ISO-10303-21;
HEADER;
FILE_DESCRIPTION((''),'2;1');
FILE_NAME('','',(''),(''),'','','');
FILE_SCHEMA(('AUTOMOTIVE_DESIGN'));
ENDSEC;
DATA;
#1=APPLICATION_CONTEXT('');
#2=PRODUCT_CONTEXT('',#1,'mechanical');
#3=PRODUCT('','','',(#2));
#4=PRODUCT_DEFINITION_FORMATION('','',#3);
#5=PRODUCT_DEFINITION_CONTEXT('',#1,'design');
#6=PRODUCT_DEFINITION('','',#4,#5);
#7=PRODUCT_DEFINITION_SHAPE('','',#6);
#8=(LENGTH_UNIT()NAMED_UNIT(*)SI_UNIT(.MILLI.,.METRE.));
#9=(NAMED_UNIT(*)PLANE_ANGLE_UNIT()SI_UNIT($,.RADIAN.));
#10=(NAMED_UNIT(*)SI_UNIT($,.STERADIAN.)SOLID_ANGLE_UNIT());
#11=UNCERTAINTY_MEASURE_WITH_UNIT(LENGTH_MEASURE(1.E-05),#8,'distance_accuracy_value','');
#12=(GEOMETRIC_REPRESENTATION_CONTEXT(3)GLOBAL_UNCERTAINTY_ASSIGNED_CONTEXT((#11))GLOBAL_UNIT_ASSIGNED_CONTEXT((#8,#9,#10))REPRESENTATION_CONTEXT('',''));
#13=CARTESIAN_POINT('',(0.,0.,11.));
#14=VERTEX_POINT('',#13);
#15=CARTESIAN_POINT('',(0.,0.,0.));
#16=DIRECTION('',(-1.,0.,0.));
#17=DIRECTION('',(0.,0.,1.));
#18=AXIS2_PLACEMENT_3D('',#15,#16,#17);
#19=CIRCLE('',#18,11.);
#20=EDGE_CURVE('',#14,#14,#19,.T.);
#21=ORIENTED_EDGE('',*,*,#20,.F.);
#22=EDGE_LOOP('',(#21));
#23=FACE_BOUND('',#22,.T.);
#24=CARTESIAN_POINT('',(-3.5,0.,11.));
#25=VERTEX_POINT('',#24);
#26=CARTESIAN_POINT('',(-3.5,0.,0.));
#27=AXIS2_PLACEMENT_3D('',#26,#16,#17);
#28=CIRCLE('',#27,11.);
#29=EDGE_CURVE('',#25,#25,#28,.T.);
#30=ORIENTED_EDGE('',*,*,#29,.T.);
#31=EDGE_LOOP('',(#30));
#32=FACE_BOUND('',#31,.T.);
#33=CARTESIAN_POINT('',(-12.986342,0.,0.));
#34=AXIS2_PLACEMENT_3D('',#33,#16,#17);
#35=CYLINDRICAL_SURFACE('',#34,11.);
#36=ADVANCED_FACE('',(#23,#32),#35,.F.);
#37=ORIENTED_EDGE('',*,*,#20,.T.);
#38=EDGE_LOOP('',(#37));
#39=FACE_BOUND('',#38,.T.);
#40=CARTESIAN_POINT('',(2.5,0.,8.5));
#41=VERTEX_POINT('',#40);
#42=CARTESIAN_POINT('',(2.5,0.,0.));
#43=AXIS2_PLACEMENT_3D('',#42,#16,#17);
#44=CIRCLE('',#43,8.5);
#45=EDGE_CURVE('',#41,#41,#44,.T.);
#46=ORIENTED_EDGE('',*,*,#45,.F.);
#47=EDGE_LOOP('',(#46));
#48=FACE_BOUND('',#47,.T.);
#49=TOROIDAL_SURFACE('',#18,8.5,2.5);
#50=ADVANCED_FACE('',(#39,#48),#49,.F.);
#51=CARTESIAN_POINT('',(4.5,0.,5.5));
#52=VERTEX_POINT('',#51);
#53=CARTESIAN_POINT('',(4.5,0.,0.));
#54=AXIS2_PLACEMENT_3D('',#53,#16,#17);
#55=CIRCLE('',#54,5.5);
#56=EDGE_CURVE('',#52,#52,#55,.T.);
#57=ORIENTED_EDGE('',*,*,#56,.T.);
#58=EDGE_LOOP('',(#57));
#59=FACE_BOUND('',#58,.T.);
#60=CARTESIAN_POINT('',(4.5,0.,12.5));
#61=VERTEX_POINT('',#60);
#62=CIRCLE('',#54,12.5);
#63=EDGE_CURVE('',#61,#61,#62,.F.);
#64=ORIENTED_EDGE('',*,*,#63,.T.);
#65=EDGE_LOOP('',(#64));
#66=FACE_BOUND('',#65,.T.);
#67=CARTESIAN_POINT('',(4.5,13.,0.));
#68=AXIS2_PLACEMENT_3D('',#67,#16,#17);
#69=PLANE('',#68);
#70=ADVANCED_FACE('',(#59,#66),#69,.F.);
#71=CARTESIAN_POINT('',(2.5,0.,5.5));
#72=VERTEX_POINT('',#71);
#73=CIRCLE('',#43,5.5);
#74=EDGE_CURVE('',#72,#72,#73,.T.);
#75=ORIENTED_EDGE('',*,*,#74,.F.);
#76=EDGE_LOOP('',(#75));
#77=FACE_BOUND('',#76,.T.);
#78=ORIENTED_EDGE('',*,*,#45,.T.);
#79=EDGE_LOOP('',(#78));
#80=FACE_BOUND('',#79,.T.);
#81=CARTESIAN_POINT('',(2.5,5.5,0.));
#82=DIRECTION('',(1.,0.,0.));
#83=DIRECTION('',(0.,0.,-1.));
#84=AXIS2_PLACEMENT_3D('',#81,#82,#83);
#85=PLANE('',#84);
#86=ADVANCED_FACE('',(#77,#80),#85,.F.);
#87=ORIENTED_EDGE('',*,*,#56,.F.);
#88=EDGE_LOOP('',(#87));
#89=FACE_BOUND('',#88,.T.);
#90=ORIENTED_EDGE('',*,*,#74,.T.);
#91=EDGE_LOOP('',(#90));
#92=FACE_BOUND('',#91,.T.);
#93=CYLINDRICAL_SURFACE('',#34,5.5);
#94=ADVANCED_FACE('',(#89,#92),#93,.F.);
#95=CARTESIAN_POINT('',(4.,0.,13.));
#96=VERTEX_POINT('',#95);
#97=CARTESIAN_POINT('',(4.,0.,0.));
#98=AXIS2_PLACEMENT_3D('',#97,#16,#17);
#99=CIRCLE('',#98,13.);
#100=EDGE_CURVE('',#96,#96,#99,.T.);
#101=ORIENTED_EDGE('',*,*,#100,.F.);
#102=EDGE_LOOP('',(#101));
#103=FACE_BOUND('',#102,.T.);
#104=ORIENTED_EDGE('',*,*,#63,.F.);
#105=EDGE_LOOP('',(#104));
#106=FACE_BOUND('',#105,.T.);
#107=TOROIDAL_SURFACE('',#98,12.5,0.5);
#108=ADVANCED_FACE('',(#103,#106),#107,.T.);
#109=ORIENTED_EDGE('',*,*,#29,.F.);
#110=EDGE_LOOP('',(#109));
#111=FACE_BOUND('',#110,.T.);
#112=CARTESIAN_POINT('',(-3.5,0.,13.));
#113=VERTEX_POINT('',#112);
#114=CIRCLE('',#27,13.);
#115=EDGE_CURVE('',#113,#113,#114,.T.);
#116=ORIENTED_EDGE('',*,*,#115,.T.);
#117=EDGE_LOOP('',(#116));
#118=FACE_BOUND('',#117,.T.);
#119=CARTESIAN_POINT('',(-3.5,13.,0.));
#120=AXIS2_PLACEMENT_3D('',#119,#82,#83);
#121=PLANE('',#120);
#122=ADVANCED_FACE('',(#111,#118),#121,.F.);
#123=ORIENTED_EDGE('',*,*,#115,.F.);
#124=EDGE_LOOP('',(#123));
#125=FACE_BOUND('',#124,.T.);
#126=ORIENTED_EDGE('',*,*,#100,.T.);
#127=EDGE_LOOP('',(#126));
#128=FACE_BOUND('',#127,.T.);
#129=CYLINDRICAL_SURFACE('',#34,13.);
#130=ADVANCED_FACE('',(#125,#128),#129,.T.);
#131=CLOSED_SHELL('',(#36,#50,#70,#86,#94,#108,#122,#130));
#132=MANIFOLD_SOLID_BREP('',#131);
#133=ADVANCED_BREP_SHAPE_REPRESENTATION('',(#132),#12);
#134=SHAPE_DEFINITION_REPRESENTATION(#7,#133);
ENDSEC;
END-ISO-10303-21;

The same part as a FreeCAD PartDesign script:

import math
import FreeCAD as App
import Part
import Sketcher


def edges_at(feature, points):
    """Names of the edges that pass closest to the given points."""
    edges = feature.Shape.Edges
    near = lambda p: min(range(len(edges)), key=lambda i: edges[i].distToShape(Part.Vertex(*p))[0])
    return sorted({f"Edge{near(p) + 1}" for p in points})

doc = App.newDocument("Part")
body = doc.addObject("PartDesign::Body", "Body")

# Sketch on XY plane
sketch1 = body.newObject("Sketcher::SketchObject", "Sketch")
sketch1.AttachmentSupport = (doc.getObject("XY_Plane"), [""])
sketch1.MapMode = "FlatFace"
sketch1.addGeometry([
    Part.LineSegment(App.Vector(4.5, 13, 0), App.Vector(-3.5, 13, 0)),  # 0
    Part.LineSegment(App.Vector(-3.5, 13, 0), App.Vector(-3.5, 11, 0)),  # 1
    Part.LineSegment(App.Vector(-3.5, 11, 0), App.Vector(0, 11, 0)),  # 2
    Part.ArcOfCircle(Part.Circle(App.Vector(0, 8.5, 0), App.Vector(0, 0, 1), 2.5), math.radians(0), math.radians(90)),  # 3
    Part.LineSegment(App.Vector(2.5, 8.5, 0), App.Vector(2.5, 5.5, 0)),  # 4
    Part.LineSegment(App.Vector(2.5, 5.5, 0), App.Vector(4.5, 5.5, 0)),  # 5
    Part.LineSegment(App.Vector(4.5, 5.5, 0), App.Vector(4.5, 13, 0)),  # 6
], False)
sketch1.addConstraint([
    Sketcher.Constraint("Coincident", 0, 2, 1, 1),
    Sketcher.Constraint("Coincident", 1, 2, 2, 1),
    Sketcher.Constraint("Tangent", 2, 2, 3, 2),
    Sketcher.Constraint("Tangent", 3, 1, 4, 1),
    Sketcher.Constraint("Coincident", 4, 2, 5, 1),
    Sketcher.Constraint("Coincident", 5, 2, 6, 1),
    Sketcher.Constraint("Coincident", 6, 2, 0, 1),
    Sketcher.Constraint("Horizontal", 0),
    Sketcher.Constraint("Vertical", 1),
    Sketcher.Constraint("Horizontal", 2),
    Sketcher.Constraint("Vertical", 4),
    Sketcher.Constraint("Horizontal", 5),
    Sketcher.Constraint("Vertical", 6),
    Sketcher.Constraint("PointOnObject", 3, 3, -2),
    Sketcher.Constraint("Equal", 5, 1),
    Sketcher.Constraint("Radius", 3, 2.5),
    Sketcher.Constraint("DistanceX", 0, 2, 0, 1, 8.0),
    Sketcher.Constraint("DistanceX", 5, 1, 5, 2, 2.0),
    Sketcher.Constraint("DistanceY", 4, 2, 4, 1, 3.0),
    Sketcher.Constraint("DistanceY", -1, 1, 0, 2, 13.0),
])
revolution = body.newObject("PartDesign::Revolution", "Revolution")
revolution.Profile = sketch1
revolution.ReferenceAxis = (sketch1, ["H_Axis"])
revolution.Angle = 360
doc.recompute()

fillet = body.newObject("PartDesign::Fillet", "Fillet")
fillet.Base = (revolution, edges_at(revolution, [(4.5, 0, -13)]))
fillet.Radius = 0.5

doc.recompute()
